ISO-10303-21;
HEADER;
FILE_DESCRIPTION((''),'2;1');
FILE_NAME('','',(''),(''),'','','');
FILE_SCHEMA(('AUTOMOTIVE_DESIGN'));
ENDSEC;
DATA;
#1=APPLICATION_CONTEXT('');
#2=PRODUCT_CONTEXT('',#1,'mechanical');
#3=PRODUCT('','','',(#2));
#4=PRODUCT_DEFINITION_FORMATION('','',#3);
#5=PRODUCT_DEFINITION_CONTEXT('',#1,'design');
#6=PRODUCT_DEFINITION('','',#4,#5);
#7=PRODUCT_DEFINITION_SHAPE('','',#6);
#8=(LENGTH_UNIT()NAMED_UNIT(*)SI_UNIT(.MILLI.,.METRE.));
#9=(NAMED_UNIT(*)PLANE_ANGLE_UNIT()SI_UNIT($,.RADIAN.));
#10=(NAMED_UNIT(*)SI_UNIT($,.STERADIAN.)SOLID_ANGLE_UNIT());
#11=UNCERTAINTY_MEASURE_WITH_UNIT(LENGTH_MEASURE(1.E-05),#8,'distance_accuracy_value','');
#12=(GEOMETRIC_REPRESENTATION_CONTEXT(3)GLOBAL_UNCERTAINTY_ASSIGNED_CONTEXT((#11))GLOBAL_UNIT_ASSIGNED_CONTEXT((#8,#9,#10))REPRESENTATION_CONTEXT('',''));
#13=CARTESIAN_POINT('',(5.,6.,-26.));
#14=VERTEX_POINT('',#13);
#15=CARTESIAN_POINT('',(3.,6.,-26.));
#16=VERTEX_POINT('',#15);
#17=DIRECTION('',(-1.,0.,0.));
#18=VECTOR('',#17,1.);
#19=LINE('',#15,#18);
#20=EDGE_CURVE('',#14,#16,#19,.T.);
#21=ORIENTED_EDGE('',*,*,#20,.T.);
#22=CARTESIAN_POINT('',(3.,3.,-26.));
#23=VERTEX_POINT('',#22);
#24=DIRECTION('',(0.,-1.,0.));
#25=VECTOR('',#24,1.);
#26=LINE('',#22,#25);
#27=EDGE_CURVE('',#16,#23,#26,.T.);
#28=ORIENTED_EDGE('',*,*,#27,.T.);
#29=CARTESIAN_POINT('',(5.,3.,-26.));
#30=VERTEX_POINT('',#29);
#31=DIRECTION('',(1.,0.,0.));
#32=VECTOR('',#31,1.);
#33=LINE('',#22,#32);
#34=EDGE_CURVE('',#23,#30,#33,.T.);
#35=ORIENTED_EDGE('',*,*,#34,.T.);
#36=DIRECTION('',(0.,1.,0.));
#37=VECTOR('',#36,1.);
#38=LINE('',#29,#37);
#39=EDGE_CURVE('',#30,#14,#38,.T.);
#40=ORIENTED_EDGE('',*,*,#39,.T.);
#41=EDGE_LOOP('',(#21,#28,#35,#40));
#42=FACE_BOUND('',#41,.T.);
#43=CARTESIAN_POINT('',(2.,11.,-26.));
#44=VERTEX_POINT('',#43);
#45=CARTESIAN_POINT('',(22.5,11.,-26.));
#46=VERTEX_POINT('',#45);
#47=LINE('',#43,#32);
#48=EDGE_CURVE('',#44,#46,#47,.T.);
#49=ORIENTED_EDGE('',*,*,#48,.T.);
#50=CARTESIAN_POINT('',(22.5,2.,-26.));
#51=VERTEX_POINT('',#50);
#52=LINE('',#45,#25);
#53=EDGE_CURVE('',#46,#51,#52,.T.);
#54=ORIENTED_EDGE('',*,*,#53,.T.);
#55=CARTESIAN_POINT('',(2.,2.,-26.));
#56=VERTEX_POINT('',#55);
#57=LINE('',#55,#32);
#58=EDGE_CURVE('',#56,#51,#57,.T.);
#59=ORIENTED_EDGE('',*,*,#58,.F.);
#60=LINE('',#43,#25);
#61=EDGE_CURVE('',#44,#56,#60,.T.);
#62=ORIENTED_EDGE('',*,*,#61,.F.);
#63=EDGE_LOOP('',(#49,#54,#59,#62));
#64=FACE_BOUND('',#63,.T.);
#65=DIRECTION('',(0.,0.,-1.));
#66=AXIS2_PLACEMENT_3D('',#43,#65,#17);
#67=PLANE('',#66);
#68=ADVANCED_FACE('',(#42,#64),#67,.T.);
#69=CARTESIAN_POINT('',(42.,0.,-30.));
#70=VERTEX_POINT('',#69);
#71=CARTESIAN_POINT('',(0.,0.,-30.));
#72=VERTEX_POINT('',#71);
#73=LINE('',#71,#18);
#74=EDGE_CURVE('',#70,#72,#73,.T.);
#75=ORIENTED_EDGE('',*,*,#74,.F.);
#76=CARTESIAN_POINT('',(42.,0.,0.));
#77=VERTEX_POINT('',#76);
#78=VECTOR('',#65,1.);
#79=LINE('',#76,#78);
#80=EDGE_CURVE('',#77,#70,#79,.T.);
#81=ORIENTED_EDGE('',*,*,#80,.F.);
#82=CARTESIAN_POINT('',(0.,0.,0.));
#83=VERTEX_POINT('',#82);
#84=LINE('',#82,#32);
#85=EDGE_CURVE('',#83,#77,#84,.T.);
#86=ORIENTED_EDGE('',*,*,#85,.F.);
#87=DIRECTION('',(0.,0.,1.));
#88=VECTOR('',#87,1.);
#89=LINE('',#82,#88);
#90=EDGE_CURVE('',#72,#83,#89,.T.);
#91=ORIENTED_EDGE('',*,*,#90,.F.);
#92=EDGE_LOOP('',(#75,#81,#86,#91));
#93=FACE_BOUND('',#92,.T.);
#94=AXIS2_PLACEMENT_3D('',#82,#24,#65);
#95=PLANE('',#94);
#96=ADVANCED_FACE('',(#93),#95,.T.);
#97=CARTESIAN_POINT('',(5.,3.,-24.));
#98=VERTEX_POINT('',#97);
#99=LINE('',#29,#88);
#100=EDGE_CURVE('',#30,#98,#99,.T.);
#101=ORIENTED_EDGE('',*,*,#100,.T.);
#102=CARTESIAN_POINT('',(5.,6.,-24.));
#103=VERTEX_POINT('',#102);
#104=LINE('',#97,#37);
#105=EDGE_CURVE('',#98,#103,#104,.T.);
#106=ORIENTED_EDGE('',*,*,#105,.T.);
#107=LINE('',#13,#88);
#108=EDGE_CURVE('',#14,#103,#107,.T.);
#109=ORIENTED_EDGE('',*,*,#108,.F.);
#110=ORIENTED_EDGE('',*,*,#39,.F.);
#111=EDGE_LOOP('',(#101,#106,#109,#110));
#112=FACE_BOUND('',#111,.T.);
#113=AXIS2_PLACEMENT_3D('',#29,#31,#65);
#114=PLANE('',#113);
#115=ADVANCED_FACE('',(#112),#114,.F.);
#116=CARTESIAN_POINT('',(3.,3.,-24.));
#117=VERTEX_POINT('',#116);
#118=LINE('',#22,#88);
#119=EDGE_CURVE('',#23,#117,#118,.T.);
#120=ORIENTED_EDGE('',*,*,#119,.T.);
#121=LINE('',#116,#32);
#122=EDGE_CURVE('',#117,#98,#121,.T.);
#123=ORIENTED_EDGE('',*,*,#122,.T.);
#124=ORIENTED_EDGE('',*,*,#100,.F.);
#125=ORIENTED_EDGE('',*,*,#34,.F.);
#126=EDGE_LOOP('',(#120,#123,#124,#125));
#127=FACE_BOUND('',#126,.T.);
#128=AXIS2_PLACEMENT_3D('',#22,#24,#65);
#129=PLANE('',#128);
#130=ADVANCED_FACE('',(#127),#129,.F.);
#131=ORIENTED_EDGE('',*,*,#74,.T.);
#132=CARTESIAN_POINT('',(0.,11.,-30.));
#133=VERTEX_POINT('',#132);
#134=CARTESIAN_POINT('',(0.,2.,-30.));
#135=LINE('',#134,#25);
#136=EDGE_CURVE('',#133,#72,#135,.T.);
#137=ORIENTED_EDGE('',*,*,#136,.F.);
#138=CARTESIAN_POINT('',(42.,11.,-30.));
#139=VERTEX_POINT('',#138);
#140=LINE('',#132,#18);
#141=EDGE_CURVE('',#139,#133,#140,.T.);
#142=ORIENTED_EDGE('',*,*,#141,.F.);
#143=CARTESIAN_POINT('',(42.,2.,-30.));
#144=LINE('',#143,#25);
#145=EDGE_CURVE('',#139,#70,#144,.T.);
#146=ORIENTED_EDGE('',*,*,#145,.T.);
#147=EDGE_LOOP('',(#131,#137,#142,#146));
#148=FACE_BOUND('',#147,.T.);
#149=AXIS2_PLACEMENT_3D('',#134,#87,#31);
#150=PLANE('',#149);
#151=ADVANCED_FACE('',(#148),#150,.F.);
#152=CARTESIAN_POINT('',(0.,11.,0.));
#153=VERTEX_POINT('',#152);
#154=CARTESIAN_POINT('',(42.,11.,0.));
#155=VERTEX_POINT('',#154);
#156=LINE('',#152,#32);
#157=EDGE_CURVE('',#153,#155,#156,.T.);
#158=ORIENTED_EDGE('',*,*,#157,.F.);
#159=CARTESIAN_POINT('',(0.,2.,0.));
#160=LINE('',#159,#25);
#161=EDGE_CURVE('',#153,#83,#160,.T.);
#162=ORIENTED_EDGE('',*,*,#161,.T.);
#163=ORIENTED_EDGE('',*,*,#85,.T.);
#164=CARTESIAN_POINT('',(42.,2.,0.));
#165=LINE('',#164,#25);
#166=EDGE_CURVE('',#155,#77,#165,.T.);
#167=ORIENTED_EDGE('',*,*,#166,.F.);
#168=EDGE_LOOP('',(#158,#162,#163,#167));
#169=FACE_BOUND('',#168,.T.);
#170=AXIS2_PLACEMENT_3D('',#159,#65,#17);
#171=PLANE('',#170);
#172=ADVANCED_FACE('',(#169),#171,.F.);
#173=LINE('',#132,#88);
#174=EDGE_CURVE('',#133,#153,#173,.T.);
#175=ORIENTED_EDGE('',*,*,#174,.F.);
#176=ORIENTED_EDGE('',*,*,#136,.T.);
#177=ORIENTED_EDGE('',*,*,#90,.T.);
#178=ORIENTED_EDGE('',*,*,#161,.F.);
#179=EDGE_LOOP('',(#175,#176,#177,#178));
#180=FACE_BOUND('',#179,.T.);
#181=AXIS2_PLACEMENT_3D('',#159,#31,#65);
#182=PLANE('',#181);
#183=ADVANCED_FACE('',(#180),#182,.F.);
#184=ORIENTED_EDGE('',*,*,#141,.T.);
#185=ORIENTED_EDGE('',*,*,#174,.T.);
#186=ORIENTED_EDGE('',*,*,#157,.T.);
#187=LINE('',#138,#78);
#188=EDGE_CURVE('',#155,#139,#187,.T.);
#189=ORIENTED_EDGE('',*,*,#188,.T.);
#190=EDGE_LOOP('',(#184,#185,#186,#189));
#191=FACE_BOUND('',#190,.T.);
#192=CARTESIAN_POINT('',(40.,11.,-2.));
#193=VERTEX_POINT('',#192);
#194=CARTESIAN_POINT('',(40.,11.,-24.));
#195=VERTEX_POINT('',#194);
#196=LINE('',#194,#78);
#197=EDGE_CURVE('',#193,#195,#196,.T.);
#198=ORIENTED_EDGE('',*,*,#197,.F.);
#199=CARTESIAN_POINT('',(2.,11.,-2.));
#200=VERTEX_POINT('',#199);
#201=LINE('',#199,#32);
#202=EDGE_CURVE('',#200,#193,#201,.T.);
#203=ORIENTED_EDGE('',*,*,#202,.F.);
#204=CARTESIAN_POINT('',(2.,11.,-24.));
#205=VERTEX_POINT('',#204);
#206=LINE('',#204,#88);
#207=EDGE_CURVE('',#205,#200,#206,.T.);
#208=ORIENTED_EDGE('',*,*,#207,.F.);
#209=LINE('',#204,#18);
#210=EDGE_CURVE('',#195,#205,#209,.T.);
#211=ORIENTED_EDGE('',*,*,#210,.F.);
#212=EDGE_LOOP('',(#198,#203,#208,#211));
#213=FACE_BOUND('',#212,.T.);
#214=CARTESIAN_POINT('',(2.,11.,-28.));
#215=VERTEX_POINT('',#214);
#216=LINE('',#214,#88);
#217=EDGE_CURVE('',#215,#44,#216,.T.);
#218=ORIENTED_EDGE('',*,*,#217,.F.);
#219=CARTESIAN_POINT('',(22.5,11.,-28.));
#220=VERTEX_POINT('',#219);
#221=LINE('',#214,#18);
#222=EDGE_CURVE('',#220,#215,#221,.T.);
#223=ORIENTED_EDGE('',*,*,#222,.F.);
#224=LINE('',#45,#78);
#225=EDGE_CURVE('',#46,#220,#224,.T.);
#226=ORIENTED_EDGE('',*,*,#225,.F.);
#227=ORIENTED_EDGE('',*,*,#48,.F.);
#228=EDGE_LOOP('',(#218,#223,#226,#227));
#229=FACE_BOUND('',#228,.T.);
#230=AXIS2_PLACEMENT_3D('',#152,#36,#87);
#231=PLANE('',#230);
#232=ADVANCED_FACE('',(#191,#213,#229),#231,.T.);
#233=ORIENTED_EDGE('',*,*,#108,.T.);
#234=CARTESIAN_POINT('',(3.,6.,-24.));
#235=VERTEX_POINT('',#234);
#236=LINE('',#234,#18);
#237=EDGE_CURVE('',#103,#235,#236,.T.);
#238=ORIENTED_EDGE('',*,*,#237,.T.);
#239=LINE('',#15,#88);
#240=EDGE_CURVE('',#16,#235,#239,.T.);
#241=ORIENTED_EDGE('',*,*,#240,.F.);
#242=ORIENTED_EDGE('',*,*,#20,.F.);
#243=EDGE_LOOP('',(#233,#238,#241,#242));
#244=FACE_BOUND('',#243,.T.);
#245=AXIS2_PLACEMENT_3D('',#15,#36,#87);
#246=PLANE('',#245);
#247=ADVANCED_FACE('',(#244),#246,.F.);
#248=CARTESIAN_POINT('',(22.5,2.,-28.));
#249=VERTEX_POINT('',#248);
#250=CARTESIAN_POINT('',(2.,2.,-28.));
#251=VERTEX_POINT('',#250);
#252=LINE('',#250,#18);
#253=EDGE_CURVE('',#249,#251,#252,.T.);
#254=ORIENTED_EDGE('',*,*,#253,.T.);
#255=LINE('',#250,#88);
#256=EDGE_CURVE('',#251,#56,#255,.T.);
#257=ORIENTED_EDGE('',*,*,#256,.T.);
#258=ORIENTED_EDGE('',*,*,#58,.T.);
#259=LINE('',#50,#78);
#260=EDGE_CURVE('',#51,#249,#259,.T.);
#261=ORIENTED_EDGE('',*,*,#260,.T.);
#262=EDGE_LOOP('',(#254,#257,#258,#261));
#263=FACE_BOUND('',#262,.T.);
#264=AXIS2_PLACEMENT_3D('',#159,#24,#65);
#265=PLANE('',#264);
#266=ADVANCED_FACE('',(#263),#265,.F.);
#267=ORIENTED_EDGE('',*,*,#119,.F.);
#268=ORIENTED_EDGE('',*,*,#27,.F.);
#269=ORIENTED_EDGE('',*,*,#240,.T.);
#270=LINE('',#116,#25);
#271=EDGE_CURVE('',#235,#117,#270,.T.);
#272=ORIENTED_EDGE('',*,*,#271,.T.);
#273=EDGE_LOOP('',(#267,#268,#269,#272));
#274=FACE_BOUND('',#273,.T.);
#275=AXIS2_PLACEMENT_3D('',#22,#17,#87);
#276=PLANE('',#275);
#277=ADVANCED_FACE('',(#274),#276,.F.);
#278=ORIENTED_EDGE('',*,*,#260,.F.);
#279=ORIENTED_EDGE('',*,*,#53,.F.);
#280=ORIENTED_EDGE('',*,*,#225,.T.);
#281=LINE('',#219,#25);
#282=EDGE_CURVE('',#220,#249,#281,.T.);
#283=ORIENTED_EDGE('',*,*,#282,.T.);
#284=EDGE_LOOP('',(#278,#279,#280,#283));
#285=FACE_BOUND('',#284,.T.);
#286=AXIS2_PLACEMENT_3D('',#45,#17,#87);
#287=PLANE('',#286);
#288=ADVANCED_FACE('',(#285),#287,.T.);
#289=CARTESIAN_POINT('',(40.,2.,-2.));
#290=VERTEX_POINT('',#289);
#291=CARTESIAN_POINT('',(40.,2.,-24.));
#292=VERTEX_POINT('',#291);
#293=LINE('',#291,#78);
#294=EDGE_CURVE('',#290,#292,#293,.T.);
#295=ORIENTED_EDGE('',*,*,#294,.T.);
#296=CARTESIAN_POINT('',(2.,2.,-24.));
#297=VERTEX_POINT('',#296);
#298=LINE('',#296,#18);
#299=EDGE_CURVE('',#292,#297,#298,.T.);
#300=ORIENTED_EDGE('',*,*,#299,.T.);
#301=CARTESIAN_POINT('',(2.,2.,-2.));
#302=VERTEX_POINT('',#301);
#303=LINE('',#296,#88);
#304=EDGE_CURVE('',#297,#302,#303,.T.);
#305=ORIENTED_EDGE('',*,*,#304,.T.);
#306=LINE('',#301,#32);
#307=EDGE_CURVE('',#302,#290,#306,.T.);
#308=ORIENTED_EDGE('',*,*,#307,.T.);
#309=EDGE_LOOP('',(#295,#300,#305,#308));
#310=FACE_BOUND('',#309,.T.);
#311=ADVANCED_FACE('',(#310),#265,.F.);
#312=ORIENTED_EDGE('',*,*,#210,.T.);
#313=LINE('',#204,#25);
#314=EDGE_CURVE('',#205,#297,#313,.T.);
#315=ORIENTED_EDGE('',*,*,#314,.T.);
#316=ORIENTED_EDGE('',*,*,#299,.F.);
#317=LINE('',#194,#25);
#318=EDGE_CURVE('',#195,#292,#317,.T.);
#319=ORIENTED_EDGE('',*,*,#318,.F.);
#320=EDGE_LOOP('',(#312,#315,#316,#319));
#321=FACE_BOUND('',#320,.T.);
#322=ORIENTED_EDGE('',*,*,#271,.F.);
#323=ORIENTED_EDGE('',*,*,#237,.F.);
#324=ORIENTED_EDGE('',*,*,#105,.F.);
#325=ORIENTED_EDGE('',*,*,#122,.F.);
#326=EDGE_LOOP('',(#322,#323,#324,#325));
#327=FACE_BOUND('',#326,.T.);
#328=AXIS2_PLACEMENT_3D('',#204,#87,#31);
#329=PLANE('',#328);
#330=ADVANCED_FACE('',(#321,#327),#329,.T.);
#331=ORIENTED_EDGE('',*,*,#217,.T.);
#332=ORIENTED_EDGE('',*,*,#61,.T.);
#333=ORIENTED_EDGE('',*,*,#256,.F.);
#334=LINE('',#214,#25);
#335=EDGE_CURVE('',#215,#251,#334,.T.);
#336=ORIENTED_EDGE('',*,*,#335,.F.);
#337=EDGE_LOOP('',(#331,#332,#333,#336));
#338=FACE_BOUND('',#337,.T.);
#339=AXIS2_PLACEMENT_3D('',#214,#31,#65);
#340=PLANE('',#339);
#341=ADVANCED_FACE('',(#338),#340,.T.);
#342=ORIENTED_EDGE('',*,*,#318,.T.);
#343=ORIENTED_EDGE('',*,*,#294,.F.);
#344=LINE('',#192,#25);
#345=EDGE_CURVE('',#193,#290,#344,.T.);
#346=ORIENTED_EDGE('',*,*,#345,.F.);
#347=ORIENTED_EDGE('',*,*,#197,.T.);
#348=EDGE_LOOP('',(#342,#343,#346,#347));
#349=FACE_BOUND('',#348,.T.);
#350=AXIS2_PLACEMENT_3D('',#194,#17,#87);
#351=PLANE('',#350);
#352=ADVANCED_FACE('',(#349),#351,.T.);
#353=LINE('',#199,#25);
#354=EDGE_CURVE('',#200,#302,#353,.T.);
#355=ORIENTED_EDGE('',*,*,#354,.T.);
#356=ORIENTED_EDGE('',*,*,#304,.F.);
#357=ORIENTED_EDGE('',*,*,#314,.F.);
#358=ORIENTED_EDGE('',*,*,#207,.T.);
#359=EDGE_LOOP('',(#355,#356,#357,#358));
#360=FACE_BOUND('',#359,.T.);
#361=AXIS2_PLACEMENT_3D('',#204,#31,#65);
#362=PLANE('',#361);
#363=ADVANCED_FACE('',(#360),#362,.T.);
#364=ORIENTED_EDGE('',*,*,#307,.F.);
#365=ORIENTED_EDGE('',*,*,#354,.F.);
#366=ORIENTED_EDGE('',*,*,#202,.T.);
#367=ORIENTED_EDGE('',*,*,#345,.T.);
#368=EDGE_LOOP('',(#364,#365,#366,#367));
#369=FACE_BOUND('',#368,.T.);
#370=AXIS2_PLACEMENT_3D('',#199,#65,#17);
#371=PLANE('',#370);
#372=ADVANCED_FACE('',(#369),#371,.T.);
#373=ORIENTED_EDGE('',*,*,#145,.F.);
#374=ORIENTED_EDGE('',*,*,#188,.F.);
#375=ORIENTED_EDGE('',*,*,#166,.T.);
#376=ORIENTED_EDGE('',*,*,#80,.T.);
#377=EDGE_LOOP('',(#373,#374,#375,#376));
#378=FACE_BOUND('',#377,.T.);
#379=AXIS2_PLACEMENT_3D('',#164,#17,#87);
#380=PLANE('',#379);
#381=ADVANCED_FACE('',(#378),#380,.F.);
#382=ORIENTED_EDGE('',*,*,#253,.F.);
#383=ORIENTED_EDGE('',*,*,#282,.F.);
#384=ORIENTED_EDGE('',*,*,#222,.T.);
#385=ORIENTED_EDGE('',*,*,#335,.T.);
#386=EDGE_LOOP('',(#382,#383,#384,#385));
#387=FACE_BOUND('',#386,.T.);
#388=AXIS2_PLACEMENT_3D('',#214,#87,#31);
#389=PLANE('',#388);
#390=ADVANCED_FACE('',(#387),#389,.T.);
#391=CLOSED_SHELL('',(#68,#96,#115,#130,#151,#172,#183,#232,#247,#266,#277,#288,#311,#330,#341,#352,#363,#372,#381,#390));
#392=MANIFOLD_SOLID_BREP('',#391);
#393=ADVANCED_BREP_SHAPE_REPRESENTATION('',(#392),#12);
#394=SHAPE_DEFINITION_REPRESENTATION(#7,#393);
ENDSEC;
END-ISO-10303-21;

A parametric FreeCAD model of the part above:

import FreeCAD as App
import Part
import Sketcher
from FreeCAD import Vector

doc = App.newDocument("Part")
body = doc.addObject("PartDesign::Body", "Body")

sketch1 = body.newObject("Sketcher::SketchObject", "Sketch")
sketch1.AttachmentSupport = (doc.getObject("XZ_Plane"), [""])
sketch1.MapMode = "FlatFace"
sketch1.addGeometry(Part.LineSegment(Vector(0, -30, 0), Vector(0, 0, 0)), False)
sketch1.addGeometry(Part.LineSegment(Vector(0, 0, 0), Vector(42, 0, 0)), False)
sketch1.addGeometry(Part.LineSegment(Vector(42, 0, 0), Vector(42, -30, 0)), False)
sketch1.addGeometry(Part.LineSegment(Vector(42, -30, 0), Vector(0, -30, 0)), False)
sketch1.addConstraint(Sketcher.Constraint("Coincident", 0, 2, 1, 1))
sketch1.addConstraint(Sketcher.Constraint("Coincident", 1, 2, 2, 1))
sketch1.addConstraint(Sketcher.Constraint("Coincident", 2, 2, 3, 1))
sketch1.addConstraint(Sketcher.Constraint("Coincident", 3, 2, 0, 1))
sketch1.addConstraint(Sketcher.Constraint("Vertical", 0))
sketch1.addConstraint(Sketcher.Constraint("Horizontal", 1))
sketch1.addConstraint(Sketcher.Constraint("Vertical", 2))
sketch1.addConstraint(Sketcher.Constraint("Horizontal", 3))
sketch1.addConstraint(Sketcher.Constraint("Coincident", 0, 2, -1, 1))
sketch1.addConstraint(Sketcher.Constraint("DistanceX", 1, 1, 1, 2, 42.0))
sketch1.addConstraint(Sketcher.Constraint("DistanceY", 0, 1, 0, 2, 30.0))
pad1 = body.newObject("PartDesign::Pad", "Pad")
pad1.Profile = sketch1
pad1.Length = 2
pad1.Reversed = True

sketch2 = body.newObject("Sketcher::SketchObject", "Sketch001")
sketch2.AttachmentSupport = (doc.getObject("XZ_Plane"), [""])
sketch2.MapMode = "FlatFace"
sketch2.AttachmentOffset = App.Placement(Vector(0, 0, -2), App.Rotation())
sketch2.addGeometry(Part.LineSegment(Vector(0, -30, 0), Vector(0, 0, 0)), False)
sketch2.addGeometry(Part.LineSegment(Vector(0, 0, 0), Vector(42, 0, 0)), False)
sketch2.addGeometry(Part.LineSegment(Vector(42, 0, 0), Vector(42, -30, 0)), False)
sketch2.addGeometry(Part.LineSegment(Vector(42, -30, 0), Vector(0, -30, 0)), False)
sketch2.addGeometry(Part.LineSegment(Vector(40, -2, 0), Vector(2, -2, 0)), False)
sketch2.addGeometry(Part.LineSegment(Vector(2, -2, 0), Vector(2, -24, 0)), False)
sketch2.addGeometry(Part.LineSegment(Vector(2, -24, 0), Vector(40, -24, 0)), False)
sketch2.addGeometry(Part.LineSegment(Vector(40, -24, 0), Vector(40, -2, 0)), False)
sketch2.addGeometry(Part.LineSegment(Vector(22.5, -26, 0), Vector(2, -26, 0)), False)
sketch2.addGeometry(Part.LineSegment(Vector(2, -26, 0), Vector(2, -28, 0)), False)
sketch2.addGeometry(Part.LineSegment(Vector(2, -28, 0), Vector(22.5, -28, 0)), False)
sketch2.addGeometry(Part.LineSegment(Vector(22.5, -28, 0), Vector(22.5, -26, 0)), False)
sketch2.addConstraint(Sketcher.Constraint("Coincident", 0, 2, 1, 1))
sketch2.addConstraint(Sketcher.Constraint("Coincident", 1, 2, 2, 1))
sketch2.addConstraint(Sketcher.Constraint("Coincident", 2, 2, 3, 1))
sketch2.addConstraint(Sketcher.Constraint("Coincident", 3, 2, 0, 1))
sketch2.addConstraint(Sketcher.Constraint("Coincident", 4, 2, 5, 1))
sketch2.addConstraint(Sketcher.Constraint("Coincident", 5, 2, 6, 1))
sketch2.addConstraint(Sketcher.Constraint("Coincident", 6, 2, 7, 1))
sketch2.addConstraint(Sketcher.Constraint("Coincident", 7, 2, 4, 1))
sketch2.addConstraint(Sketcher.Constraint("Coincident", 8, 2, 9, 1))
sketch2.addConstraint(Sketcher.Constraint("Coincident", 9, 2, 10, 1))
sketch2.addConstraint(Sketcher.Constraint("Coincident", 10, 2, 11, 1))
sketch2.addConstraint(Sketcher.Constraint("Coincident", 11, 2, 8, 1))
sketch2.addConstraint(Sketcher.Constraint("Vertical", 0))
sketch2.addConstraint(Sketcher.Constraint("Horizontal", 1))
sketch2.addConstraint(Sketcher.Constraint("Vertical", 2))
sketch2.addConstraint(Sketcher.Constraint("Horizontal", 3))
sketch2.addConstraint(Sketcher.Constraint("Horizontal", 4))
sketch2.addConstraint(Sketcher.Constraint("Vertical", 5))
sketch2.addConstraint(Sketcher.Constraint("Horizontal", 6))
sketch2.addConstraint(Sketcher.Constraint("Vertical", 7))
sketch2.addConstraint(Sketcher.Constraint("Horizontal", 8))
sketch2.addConstraint(Sketcher.Constraint("Vertical", 9))
sketch2.addConstraint(Sketcher.Constraint("Horizontal", 10))
sketch2.addConstraint(Sketcher.Constraint("Vertical", 11))
sketch2.addConstraint(Sketcher.Constraint("Coincident", 0, 2, -1, 1))
sketch2.addConstraint(Sketcher.Constraint("Vertical", 5, 2, 8, 2))
sketch2.addConstraint(Sketcher.Constraint("DistanceX", 1, 1, 1, 2, 42.0))
sketch2.addConstraint(Sketcher.Constraint("DistanceX", 4, 2, 4, 1, 38.0))
sketch2.addConstraint(Sketcher.Constraint("DistanceY", 0, 1, 0, 2, 30.0))
sketch2.addConstraint(Sketcher.Constraint("DistanceY", 5, 2, 5, 1, 22.0))
sketch2.addConstraint(Sketcher.Constraint("DistanceY", 9, 2, 9, 1, 2.0))
sketch2.addConstraint(Sketcher.Constraint("DistanceX", 8, 2, 8, 1, 20.5))
sketch2.addConstraint(Sketcher.Constraint("DistanceX", -1, 1, 4, 2, 2.0))
sketch2.addConstraint(Sketcher.Constraint("DistanceY", 4, 2, -1, 1, 2.0))
sketch2.addConstraint(Sketcher.Constraint("DistanceY", 8, 2, -1, 1, 26.0))
pad2 = body.newObject("PartDesign::Pad", "Pad001")
pad2.Profile = sketch2
pad2.Length = 9
pad2.Reversed = True

sketch3 = body.newObject("Sketcher::SketchObject", "Sketch002")
sketch3.AttachmentSupport = (doc.getObject("XY_Plane"), [""])
sketch3.MapMode = "FlatFace"
sketch3.AttachmentOffset = App.Placement(Vector(0, 0, -24), App.Rotation())
sketch3.addGeometry(Part.LineSegment(Vector(3, 6, 0), Vector(3, 3, 0)), False)
sketch3.addGeometry(Part.LineSegment(Vector(3, 3, 0), Vector(5, 3, 0)), False)
sketch3.addGeometry(Part.LineSegment(Vector(5, 3, 0), Vector(5, 6, 0)), False)
sketch3.addGeometry(Part.LineSegment(Vector(5, 6, 0), Vector(3, 6, 0)), False)
sketch3.addConstraint(Sketcher.Constraint("Coincident", 0, 2, 1, 1))
sketch3.addConstraint(Sketcher.Constraint("Coincident", 1, 2, 2, 1))
sketch3.addConstraint(Sketcher.Constraint("Coincident", 2, 2, 3, 1))
sketch3.addConstraint(Sketcher.Constraint("Coincident", 3, 2, 0, 1))
sketch3.addConstraint(Sketcher.Constraint("Vertical", 0))
sketch3.addConstraint(Sketcher.Constraint("Horizontal", 1))
sketch3.addConstraint(Sketcher.Constraint("Vertical", 2))
sketch3.addConstraint(Sketcher.Constraint("Horizontal", 3))
sketch3.addConstraint(Sketcher.Constraint("DistanceX", 1, 1, 1, 2, 2.0))
sketch3.addConstraint(Sketcher.Constraint("DistanceY", 0, 2, 0, 1, 3.0))
sketch3.addConstraint(Sketcher.Constraint("DistanceX", -1, 1, 0, 2, 3.0))
sketch3.addConstraint(Sketcher.Constraint("DistanceY", -1, 1, 0, 2, 3.0))
pocket1 = body.newObject("PartDesign::Pocket", "Pocket")
pocket1.Profile = sketch3
pocket1.Length = 2

doc.recompute()
